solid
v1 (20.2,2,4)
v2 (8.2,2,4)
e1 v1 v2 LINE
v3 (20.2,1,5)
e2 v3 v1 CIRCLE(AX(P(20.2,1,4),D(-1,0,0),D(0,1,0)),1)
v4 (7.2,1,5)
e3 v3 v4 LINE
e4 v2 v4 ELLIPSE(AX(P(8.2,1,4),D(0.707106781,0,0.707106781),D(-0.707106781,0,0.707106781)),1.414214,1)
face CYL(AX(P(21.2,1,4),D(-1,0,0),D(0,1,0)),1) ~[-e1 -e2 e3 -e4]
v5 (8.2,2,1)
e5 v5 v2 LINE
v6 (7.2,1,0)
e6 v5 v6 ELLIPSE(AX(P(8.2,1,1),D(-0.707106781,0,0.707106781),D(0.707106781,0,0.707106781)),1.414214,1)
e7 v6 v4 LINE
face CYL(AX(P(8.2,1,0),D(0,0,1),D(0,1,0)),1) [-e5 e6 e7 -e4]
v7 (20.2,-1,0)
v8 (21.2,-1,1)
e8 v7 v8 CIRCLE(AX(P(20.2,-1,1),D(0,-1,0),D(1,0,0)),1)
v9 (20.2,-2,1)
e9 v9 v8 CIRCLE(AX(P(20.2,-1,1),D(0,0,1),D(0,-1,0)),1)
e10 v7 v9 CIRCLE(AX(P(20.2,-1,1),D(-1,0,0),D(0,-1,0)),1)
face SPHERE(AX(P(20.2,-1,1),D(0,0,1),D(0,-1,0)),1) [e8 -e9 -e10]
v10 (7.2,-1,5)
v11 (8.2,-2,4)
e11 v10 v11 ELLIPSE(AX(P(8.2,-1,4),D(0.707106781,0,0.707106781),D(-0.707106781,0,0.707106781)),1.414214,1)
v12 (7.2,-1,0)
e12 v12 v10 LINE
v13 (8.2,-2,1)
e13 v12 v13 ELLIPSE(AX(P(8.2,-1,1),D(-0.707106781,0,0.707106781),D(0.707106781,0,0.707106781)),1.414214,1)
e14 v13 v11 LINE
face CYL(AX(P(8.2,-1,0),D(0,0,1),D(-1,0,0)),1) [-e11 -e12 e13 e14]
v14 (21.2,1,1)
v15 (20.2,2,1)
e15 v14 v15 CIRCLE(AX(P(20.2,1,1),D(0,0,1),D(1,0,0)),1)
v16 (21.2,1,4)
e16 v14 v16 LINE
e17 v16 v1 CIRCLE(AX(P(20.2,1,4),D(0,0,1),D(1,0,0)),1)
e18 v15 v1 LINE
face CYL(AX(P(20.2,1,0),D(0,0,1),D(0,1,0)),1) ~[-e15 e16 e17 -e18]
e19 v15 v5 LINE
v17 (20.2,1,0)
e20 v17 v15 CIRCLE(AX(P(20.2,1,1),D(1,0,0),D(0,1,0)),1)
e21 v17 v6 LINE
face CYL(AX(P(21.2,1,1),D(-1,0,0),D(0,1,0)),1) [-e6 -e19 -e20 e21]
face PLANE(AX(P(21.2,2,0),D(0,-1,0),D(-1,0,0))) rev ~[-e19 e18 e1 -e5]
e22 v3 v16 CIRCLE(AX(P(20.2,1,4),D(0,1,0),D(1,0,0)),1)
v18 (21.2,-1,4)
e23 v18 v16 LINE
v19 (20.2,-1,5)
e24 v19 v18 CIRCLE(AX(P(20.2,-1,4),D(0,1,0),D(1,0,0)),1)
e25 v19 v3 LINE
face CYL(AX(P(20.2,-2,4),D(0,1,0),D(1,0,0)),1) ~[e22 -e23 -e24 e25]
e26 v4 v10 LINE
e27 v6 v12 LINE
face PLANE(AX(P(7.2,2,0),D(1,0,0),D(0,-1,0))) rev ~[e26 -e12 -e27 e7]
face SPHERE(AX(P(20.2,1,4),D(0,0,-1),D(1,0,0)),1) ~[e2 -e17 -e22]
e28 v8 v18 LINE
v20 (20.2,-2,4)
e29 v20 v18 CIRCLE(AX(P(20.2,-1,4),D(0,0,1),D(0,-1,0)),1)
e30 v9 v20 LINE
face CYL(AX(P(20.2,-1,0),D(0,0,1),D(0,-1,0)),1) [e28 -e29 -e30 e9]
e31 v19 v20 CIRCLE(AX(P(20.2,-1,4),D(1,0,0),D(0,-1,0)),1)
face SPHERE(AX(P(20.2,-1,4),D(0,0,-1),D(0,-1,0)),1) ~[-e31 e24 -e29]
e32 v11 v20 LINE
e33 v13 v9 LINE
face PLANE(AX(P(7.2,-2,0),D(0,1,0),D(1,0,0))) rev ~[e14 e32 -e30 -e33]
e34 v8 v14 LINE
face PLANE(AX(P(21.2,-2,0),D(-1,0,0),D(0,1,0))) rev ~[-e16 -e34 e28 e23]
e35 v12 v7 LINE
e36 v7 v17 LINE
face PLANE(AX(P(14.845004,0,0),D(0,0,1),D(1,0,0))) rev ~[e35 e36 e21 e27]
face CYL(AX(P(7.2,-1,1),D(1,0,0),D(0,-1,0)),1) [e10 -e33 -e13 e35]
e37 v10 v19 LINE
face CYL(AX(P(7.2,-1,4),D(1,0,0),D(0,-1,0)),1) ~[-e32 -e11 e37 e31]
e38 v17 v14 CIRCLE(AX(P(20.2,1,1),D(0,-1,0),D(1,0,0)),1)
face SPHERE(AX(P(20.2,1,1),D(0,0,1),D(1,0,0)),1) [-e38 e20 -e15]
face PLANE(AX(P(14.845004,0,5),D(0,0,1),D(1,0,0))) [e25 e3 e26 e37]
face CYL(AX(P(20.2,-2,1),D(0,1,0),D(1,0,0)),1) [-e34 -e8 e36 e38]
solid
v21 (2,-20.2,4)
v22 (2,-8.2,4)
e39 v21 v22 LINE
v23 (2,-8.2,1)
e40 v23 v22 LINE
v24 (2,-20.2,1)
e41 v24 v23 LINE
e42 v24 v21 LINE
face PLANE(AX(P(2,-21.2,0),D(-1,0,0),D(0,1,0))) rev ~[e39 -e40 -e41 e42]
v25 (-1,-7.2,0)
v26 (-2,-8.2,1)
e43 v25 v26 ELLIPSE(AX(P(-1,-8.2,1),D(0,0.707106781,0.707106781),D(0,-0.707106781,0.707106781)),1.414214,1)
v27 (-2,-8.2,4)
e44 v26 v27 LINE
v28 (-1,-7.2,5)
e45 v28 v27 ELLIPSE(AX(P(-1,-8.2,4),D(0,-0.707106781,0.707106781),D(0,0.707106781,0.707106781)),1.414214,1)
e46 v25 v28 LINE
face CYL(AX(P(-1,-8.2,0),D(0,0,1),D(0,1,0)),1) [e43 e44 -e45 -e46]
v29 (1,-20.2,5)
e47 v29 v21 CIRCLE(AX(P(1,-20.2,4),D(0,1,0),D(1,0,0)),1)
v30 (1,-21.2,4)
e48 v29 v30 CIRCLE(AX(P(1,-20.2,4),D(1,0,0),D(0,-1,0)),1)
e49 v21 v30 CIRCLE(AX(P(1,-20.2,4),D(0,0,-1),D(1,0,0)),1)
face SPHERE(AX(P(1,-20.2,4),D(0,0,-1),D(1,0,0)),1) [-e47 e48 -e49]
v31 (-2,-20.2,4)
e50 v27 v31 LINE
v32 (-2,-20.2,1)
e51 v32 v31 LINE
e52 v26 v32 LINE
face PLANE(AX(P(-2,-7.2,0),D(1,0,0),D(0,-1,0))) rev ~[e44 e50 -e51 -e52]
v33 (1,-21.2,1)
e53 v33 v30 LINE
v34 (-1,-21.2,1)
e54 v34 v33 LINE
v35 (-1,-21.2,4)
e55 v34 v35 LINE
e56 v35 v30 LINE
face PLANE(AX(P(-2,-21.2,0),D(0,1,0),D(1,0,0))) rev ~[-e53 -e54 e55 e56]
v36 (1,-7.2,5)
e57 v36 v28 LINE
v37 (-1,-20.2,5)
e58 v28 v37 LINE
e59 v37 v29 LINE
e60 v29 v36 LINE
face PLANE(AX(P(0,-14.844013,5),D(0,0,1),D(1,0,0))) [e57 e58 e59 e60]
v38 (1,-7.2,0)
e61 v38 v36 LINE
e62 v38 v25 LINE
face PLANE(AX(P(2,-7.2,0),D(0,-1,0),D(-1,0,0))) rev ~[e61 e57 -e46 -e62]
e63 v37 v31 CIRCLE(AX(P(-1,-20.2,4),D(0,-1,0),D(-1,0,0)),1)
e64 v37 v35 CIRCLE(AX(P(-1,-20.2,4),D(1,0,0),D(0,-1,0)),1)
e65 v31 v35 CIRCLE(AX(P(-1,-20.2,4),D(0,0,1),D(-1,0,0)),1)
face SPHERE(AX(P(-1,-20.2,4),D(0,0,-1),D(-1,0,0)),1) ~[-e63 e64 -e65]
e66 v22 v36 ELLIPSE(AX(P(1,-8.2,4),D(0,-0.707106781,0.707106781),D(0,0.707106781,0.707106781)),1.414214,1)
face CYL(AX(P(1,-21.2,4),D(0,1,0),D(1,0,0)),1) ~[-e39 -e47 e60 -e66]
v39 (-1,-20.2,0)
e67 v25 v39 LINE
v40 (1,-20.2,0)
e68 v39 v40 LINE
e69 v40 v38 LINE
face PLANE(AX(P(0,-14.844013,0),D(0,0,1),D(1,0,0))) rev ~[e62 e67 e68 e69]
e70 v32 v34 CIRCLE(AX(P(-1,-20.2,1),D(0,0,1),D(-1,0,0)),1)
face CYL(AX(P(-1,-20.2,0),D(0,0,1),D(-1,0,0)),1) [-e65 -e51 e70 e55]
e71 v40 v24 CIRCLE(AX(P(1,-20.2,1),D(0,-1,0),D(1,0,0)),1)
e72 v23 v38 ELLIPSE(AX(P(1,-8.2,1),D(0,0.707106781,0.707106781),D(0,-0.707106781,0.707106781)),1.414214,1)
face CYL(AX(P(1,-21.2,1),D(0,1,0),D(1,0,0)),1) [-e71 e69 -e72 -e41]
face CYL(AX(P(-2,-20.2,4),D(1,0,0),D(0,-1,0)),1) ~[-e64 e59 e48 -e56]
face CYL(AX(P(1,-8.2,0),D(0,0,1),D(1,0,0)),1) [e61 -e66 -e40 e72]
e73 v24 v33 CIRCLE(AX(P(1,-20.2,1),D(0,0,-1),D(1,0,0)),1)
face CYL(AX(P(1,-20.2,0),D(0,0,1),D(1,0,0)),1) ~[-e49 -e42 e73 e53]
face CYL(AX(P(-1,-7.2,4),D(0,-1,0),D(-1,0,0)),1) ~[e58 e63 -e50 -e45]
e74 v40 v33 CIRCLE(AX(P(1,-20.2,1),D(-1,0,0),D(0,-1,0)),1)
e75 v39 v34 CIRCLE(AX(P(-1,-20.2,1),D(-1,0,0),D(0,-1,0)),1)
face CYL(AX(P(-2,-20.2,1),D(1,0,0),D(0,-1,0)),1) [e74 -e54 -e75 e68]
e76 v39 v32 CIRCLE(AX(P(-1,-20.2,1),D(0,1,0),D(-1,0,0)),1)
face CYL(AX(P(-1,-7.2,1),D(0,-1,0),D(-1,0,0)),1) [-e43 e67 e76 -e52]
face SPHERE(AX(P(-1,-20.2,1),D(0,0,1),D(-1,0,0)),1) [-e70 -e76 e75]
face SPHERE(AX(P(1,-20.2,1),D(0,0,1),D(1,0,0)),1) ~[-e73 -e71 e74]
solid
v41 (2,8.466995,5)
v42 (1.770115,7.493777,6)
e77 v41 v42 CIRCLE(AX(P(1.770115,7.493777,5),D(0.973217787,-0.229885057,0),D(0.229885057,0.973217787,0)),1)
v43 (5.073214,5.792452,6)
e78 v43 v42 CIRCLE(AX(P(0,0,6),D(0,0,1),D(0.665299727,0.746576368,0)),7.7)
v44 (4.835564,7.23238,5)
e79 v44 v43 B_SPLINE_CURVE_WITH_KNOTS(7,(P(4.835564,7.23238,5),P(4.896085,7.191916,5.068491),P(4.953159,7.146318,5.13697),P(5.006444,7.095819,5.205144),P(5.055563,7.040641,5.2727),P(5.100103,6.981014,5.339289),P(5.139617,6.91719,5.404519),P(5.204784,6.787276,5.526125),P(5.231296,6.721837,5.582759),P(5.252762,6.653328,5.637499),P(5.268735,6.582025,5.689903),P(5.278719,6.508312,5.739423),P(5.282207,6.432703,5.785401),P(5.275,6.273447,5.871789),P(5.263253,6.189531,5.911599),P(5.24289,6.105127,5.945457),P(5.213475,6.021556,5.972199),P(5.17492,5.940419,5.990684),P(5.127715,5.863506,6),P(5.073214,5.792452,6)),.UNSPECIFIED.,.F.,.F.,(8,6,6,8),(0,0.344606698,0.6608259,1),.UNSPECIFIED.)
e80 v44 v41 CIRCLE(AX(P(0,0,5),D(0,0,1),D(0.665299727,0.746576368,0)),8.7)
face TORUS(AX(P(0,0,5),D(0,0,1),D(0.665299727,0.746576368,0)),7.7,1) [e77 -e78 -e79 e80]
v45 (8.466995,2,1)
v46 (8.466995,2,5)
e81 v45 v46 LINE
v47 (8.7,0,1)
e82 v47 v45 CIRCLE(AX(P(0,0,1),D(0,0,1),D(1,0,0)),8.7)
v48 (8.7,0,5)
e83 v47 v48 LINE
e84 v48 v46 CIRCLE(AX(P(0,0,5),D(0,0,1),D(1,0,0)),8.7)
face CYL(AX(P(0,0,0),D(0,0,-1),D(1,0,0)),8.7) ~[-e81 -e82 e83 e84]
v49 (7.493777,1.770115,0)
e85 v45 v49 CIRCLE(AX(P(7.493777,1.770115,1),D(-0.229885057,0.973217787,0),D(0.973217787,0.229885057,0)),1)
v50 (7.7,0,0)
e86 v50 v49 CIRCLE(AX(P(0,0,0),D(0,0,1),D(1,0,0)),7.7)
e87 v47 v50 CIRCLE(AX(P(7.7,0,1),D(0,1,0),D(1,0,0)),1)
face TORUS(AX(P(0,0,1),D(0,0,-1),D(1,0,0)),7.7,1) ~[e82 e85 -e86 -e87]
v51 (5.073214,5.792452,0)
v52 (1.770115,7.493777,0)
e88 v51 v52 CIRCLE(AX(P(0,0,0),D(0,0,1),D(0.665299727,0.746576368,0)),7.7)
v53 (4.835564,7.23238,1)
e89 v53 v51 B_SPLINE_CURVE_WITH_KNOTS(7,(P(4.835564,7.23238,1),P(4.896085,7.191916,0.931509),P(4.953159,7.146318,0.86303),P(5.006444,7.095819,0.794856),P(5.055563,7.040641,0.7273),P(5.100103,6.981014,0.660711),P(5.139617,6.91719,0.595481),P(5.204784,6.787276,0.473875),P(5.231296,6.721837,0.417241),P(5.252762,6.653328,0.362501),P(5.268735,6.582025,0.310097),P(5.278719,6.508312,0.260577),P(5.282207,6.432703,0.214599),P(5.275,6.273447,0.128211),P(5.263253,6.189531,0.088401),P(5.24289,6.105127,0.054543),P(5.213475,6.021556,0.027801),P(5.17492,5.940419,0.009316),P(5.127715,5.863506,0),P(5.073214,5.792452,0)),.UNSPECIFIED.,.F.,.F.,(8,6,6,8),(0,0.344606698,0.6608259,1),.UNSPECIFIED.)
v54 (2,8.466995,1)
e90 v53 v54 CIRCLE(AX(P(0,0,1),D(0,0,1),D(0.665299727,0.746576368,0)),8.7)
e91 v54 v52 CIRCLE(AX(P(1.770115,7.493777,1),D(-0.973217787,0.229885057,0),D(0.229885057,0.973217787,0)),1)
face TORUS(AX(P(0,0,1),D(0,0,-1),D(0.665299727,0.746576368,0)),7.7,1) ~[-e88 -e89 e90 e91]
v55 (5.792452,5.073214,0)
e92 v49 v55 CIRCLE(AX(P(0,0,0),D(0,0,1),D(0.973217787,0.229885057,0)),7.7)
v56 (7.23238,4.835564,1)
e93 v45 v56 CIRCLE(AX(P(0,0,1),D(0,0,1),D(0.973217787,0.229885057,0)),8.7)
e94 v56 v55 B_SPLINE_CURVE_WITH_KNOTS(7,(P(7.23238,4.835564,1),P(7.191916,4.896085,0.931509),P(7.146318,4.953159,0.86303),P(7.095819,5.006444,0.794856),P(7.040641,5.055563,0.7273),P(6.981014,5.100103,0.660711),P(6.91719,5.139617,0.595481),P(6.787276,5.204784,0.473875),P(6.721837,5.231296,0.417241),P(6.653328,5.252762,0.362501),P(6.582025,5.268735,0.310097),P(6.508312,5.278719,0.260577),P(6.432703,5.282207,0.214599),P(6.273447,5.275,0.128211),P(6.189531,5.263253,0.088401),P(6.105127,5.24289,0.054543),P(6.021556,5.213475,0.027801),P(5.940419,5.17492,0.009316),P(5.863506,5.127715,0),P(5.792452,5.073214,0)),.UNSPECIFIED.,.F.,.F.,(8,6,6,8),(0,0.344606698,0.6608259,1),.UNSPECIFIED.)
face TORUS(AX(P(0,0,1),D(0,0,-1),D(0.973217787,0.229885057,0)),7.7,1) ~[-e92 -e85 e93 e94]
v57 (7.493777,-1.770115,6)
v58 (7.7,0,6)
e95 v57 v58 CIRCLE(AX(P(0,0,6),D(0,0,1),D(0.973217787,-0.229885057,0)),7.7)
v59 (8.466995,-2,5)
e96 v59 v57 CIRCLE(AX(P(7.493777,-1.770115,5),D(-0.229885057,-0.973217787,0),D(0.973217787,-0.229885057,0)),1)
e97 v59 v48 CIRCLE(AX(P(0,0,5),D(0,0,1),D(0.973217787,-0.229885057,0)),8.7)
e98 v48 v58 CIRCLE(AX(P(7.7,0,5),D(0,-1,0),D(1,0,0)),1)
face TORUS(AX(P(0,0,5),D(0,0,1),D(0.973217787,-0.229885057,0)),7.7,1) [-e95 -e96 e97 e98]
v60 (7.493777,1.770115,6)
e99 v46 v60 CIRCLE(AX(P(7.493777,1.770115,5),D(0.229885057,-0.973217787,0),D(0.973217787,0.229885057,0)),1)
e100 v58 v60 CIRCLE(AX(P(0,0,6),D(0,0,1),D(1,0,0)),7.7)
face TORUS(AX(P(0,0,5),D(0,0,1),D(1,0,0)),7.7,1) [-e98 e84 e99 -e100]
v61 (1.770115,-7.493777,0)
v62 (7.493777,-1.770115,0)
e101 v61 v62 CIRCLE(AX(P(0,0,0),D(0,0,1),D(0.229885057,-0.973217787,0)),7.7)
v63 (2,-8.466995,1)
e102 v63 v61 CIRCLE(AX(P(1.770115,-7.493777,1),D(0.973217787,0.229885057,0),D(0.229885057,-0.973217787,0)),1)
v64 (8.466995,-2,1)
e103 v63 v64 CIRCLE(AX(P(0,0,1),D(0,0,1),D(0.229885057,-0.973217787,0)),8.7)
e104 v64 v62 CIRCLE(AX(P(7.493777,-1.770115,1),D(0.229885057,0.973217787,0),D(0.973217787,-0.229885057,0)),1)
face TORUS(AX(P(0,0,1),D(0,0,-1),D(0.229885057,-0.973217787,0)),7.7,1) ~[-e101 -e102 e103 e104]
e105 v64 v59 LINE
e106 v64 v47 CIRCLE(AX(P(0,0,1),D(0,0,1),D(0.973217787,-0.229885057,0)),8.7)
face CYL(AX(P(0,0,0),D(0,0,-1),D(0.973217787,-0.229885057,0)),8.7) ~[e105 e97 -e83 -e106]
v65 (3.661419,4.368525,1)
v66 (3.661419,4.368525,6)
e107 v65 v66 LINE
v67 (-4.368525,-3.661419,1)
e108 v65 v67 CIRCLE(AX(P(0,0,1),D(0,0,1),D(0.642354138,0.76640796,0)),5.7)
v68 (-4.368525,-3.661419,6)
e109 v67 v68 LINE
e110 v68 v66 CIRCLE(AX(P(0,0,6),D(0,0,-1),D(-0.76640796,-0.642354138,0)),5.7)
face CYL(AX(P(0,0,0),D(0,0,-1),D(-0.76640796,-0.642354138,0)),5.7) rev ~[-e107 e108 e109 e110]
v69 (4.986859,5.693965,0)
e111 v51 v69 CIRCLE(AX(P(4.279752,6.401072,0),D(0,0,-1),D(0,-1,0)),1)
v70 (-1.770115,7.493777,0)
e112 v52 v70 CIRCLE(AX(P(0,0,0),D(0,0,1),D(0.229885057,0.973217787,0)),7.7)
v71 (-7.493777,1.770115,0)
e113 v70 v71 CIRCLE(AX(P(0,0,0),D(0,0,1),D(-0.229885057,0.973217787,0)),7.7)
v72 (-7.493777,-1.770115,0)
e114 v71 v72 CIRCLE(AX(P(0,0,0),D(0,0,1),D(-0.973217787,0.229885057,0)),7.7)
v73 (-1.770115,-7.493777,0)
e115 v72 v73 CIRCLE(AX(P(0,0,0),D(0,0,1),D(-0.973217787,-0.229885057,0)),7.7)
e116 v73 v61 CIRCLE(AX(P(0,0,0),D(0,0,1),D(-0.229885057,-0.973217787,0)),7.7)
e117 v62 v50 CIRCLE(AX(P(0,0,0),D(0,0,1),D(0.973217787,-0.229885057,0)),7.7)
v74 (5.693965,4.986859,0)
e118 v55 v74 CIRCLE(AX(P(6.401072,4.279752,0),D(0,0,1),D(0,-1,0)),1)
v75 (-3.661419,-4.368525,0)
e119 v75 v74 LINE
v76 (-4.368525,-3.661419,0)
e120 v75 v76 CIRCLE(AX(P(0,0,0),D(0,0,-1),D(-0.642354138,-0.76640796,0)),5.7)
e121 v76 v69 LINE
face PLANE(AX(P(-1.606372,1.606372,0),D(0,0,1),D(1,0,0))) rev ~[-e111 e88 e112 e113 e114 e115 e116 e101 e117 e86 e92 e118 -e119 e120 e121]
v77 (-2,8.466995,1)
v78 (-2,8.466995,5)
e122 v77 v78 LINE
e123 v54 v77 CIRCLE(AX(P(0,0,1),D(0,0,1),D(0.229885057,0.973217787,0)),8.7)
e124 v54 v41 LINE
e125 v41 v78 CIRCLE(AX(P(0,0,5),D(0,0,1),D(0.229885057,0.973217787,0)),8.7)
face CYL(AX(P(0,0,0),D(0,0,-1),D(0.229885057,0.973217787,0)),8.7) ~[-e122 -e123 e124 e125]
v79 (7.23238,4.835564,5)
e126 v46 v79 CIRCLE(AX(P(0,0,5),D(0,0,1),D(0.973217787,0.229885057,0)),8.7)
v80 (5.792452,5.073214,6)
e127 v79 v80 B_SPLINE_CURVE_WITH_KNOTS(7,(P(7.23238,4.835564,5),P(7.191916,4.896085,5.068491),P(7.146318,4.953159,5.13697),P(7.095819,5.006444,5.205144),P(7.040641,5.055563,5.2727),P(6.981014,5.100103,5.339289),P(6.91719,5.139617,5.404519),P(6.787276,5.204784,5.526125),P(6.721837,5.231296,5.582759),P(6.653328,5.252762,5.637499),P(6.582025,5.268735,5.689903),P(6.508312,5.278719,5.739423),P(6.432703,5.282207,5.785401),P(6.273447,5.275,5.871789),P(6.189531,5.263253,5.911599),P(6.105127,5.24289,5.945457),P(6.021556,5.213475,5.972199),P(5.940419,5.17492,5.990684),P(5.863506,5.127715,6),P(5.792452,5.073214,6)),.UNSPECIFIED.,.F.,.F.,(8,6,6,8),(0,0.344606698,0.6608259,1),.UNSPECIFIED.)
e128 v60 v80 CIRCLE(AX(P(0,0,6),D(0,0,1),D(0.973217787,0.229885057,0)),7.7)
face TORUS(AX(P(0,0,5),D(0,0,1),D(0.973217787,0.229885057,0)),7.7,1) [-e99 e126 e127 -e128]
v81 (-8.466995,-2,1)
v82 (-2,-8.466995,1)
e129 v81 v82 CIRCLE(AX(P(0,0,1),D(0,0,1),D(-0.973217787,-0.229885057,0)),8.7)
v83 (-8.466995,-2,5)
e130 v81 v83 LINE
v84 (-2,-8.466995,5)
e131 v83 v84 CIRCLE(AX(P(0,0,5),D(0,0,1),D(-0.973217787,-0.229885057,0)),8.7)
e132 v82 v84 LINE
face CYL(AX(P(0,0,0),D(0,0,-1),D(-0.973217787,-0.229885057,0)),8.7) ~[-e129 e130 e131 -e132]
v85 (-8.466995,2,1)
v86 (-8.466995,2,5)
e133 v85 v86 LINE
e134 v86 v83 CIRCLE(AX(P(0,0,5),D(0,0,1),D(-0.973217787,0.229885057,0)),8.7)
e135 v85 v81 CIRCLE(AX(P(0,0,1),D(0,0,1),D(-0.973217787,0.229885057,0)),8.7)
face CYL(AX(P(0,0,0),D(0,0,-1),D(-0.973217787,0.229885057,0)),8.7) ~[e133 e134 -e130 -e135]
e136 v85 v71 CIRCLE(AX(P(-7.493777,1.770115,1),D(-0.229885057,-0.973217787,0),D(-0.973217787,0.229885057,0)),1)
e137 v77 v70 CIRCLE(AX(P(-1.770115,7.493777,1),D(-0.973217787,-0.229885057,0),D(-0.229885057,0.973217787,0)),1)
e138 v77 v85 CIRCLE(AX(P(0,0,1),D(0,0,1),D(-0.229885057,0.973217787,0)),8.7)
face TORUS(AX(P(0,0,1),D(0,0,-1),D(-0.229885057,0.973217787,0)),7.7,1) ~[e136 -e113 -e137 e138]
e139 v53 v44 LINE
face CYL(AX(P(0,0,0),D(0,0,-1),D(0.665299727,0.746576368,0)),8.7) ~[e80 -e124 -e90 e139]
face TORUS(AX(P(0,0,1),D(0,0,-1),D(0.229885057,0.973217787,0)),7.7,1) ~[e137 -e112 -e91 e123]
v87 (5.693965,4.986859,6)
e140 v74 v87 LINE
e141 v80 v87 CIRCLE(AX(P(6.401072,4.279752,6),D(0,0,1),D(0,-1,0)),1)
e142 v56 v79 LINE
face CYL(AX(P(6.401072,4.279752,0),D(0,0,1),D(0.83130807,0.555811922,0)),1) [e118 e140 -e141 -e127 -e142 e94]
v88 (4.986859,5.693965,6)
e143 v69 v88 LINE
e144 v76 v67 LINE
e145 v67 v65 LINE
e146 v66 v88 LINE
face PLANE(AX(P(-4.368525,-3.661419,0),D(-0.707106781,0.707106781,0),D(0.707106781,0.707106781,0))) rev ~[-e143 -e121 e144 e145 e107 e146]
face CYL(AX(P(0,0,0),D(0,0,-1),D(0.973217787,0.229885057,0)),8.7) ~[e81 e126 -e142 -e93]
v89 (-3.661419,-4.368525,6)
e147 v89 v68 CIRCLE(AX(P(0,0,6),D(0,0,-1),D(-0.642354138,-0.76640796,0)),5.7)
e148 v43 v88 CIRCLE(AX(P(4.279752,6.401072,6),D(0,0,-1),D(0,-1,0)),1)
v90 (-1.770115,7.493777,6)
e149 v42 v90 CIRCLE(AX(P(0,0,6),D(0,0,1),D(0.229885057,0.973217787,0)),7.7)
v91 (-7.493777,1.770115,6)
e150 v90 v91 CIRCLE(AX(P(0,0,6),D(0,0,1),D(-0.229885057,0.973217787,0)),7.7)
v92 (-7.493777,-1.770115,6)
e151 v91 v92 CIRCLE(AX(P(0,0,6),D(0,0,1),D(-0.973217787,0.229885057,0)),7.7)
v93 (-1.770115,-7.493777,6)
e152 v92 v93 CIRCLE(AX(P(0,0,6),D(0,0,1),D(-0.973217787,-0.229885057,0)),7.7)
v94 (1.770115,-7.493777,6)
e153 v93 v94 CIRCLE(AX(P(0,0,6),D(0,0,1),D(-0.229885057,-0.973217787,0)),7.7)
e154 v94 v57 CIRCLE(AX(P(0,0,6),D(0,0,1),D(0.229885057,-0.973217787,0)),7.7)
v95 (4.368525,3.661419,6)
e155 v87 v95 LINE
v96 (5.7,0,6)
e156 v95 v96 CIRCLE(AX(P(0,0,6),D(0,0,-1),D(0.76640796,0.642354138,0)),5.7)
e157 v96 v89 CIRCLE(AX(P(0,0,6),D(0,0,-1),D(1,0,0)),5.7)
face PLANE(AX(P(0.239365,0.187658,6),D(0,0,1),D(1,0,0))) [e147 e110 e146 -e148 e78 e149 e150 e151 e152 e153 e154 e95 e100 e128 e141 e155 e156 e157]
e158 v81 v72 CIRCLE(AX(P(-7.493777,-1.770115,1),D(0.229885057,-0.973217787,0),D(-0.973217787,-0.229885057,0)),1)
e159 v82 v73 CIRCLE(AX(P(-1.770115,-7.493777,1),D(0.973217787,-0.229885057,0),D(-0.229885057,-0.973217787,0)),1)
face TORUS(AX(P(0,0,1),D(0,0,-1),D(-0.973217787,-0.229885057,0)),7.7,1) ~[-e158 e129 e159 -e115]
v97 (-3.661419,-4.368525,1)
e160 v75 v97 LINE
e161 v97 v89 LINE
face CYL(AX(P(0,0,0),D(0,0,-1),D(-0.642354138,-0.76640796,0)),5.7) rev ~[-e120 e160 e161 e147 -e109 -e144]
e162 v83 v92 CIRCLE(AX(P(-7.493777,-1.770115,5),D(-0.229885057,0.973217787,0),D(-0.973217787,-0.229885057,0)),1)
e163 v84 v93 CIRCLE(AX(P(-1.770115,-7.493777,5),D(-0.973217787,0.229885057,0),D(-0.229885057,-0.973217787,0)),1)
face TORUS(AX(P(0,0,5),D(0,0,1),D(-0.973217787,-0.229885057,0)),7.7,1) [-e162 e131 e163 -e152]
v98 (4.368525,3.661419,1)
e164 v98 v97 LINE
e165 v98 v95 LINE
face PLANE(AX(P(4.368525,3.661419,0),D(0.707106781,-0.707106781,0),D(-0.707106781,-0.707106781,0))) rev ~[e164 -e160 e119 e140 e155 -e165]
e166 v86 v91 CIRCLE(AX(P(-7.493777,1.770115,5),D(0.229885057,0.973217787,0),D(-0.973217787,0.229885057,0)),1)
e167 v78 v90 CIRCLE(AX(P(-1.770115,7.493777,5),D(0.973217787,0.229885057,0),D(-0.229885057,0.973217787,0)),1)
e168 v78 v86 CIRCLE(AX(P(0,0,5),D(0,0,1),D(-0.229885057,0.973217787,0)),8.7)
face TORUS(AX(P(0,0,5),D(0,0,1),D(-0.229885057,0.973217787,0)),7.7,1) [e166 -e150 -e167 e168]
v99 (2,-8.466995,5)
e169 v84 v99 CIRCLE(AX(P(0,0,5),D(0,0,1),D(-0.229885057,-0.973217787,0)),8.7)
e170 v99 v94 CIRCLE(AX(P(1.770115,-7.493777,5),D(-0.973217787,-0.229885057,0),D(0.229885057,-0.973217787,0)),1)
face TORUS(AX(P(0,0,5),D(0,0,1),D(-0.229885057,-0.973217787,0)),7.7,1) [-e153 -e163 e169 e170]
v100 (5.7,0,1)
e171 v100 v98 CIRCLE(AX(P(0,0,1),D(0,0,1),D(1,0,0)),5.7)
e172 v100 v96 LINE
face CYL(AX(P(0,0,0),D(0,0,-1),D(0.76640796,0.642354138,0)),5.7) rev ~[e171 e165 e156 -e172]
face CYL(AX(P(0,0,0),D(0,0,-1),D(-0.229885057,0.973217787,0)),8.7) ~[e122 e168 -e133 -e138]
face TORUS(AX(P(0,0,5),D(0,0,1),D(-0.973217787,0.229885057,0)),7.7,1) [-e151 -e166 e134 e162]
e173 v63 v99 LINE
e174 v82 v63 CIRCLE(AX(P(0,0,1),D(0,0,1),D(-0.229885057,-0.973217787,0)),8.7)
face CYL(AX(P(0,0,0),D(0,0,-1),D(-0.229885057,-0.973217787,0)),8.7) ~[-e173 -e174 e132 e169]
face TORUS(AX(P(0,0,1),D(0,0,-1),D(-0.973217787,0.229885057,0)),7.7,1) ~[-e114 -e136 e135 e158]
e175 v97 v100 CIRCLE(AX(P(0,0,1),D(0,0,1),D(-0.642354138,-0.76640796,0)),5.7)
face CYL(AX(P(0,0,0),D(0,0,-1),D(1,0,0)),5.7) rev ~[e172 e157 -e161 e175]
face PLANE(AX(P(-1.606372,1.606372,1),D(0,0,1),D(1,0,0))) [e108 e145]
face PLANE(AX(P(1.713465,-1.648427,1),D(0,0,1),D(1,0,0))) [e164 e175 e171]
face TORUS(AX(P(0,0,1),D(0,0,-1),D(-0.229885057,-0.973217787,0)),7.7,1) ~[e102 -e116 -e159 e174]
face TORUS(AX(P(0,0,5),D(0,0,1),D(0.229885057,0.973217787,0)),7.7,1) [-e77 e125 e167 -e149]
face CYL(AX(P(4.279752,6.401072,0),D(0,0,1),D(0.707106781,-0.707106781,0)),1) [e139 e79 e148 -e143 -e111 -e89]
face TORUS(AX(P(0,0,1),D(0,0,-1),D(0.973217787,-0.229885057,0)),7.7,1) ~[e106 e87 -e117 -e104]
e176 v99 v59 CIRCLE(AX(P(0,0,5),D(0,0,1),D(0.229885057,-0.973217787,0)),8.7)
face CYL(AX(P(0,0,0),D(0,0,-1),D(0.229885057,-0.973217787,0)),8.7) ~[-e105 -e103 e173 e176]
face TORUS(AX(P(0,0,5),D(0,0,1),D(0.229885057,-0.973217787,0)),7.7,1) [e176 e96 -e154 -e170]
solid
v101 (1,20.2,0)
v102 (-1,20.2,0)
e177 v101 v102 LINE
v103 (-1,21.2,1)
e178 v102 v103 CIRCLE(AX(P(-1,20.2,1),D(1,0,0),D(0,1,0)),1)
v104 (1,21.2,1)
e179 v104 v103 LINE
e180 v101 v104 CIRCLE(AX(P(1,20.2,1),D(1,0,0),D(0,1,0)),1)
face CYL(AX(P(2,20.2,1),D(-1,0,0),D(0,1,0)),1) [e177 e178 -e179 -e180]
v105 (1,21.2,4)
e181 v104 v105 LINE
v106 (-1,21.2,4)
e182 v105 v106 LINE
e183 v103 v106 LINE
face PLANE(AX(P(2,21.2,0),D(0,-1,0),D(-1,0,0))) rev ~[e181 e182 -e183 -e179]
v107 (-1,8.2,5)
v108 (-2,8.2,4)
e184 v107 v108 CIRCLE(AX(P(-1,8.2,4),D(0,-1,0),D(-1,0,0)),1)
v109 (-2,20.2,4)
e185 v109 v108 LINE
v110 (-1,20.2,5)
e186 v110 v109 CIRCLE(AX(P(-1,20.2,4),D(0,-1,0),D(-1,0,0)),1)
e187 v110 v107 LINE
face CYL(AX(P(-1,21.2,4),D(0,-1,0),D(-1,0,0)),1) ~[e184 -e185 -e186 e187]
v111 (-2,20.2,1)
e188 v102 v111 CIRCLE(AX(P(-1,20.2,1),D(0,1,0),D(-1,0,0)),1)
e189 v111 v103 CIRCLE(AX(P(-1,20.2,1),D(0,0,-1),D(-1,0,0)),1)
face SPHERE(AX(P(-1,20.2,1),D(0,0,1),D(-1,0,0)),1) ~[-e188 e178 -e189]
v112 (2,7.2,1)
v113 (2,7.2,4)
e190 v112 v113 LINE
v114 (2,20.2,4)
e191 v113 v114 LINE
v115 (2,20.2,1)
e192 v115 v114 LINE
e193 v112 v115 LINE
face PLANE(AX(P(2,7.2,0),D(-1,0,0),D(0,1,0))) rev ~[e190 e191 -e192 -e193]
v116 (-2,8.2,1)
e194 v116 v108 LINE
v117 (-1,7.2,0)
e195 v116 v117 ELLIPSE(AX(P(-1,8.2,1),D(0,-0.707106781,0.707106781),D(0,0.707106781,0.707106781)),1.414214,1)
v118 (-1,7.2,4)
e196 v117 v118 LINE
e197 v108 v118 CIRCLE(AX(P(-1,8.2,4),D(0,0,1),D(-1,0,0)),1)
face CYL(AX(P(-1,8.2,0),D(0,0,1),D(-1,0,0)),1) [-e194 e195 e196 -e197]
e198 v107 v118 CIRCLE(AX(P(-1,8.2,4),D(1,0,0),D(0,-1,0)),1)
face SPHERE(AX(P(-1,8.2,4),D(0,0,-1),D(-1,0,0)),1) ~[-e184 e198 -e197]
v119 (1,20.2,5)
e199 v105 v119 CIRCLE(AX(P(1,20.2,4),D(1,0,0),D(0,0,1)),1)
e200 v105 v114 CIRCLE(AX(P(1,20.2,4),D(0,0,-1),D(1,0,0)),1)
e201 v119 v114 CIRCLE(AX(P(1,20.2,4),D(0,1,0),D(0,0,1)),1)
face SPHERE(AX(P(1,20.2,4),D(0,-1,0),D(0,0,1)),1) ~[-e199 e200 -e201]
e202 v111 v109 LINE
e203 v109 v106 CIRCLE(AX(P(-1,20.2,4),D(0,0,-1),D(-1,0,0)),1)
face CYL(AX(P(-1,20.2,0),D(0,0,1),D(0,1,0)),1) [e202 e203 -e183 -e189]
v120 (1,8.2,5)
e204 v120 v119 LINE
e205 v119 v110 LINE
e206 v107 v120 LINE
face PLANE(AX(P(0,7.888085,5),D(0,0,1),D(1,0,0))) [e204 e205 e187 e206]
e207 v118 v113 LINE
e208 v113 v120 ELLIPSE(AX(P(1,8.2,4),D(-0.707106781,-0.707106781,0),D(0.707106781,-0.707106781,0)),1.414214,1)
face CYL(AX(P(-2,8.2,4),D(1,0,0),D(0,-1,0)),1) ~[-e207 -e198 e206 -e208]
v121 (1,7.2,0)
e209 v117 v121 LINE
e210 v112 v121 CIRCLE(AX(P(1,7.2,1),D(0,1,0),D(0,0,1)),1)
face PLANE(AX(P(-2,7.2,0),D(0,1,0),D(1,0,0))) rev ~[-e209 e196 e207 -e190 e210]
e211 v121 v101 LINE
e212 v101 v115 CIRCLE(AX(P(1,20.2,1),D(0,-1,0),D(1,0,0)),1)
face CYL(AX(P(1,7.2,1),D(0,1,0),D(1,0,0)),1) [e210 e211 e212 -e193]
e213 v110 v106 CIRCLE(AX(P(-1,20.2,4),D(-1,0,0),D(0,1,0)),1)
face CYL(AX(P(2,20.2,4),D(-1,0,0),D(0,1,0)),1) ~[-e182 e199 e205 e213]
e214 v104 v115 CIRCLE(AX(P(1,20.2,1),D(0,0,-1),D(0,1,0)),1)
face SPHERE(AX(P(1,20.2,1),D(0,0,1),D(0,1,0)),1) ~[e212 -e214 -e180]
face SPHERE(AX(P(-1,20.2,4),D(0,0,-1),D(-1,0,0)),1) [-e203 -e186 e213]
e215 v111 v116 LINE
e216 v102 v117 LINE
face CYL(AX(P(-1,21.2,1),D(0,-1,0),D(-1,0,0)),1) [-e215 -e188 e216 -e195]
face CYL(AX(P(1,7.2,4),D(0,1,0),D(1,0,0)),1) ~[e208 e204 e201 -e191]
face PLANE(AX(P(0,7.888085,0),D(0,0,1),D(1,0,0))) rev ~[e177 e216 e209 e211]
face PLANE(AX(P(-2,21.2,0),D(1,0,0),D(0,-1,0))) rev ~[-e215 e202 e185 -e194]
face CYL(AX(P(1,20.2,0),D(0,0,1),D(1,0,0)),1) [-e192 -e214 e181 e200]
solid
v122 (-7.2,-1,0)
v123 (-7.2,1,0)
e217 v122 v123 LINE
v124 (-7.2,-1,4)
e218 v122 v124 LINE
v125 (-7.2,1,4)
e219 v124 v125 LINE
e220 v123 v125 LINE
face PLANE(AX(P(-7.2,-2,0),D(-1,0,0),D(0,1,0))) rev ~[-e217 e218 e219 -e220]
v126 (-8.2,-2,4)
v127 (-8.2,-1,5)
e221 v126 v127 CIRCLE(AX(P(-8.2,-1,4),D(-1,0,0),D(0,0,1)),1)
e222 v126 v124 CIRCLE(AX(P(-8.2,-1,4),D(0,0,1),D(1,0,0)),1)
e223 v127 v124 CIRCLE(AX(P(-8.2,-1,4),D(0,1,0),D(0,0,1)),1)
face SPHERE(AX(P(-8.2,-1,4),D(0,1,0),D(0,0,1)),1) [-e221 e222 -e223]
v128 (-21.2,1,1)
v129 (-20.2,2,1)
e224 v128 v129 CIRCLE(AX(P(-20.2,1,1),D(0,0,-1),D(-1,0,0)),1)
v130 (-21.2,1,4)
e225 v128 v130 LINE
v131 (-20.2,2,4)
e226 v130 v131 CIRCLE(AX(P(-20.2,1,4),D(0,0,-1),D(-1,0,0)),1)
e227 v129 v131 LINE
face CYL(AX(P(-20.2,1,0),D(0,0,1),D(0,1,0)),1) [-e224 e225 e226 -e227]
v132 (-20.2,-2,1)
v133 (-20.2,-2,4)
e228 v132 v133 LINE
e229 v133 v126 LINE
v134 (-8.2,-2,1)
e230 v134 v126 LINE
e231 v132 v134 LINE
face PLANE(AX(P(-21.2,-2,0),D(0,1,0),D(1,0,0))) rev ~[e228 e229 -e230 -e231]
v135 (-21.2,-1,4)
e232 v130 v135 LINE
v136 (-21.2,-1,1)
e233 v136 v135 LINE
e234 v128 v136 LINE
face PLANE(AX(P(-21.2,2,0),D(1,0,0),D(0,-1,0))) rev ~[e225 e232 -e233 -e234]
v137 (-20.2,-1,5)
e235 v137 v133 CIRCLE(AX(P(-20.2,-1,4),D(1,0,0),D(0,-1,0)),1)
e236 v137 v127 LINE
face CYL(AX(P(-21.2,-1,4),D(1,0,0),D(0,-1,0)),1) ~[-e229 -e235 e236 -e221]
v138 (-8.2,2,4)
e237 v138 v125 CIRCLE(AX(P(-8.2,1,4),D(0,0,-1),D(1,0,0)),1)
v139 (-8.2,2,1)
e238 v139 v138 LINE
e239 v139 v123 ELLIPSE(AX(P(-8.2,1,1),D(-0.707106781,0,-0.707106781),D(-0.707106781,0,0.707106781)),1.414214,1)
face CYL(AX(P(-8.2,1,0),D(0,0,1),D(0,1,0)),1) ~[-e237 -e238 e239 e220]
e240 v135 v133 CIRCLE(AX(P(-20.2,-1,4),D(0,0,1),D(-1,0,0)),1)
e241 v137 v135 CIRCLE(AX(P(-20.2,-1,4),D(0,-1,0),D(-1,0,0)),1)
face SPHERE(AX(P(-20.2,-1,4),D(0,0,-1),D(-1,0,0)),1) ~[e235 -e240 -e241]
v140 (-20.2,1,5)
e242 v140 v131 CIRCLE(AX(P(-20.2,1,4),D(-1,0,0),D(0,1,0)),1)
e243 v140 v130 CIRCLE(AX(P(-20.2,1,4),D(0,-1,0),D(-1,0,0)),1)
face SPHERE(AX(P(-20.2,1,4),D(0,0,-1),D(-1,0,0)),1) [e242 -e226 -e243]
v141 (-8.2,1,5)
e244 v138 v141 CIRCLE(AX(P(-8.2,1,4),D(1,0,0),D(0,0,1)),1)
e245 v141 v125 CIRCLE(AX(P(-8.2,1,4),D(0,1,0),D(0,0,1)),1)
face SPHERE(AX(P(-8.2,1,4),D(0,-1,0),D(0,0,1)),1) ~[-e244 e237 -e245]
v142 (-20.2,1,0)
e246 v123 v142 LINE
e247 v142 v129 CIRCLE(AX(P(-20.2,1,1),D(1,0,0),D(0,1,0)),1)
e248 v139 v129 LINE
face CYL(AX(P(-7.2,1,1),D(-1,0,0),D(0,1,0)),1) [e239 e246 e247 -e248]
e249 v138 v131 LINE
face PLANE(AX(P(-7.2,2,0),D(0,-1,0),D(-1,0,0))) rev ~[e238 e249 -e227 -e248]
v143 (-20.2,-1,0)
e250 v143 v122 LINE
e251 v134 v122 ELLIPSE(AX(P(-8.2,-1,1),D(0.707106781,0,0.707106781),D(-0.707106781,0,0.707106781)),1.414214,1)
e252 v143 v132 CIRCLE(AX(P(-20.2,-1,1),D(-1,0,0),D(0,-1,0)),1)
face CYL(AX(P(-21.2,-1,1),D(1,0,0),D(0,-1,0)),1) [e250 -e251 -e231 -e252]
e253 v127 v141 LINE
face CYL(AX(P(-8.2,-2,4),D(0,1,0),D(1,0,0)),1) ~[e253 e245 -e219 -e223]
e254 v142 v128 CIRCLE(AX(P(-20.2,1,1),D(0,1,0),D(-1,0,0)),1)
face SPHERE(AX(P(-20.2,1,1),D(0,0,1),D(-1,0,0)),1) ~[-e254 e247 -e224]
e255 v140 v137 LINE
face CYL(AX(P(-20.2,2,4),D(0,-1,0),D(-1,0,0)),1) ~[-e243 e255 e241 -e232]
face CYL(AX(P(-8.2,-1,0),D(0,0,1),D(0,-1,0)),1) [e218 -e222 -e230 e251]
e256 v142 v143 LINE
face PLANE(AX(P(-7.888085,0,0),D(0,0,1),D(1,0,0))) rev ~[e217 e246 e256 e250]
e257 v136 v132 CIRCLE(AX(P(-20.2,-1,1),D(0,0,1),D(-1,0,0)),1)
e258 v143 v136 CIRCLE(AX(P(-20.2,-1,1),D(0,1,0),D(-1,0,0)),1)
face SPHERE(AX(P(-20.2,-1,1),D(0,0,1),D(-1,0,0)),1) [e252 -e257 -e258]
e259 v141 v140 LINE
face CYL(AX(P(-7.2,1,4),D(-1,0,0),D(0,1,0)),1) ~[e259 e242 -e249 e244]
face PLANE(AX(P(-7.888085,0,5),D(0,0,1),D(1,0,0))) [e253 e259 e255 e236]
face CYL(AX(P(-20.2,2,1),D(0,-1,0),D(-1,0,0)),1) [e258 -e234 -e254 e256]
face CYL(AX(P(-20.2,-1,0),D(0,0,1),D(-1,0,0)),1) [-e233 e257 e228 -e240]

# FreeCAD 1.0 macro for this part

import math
import FreeCAD as App
import Part
import Sketcher

V = App.Vector
Q = App.Units.Quantity


def edges_at(feature, points):
    """Names of the edges that pass closest to the given points."""
    edges = feature.Shape.Edges
    near = lambda p: min(range(len(edges)), key=lambda i: edges[i].distToShape(Part.Vertex(*p))[0])
    return sorted({f"Edge{near(p) + 1}" for p in points})

doc = App.newDocument("Part")
params = doc.addObject("Spreadsheet::Sheet", "Params")
for row, (alias, value) in enumerate([
    ("sketch1_width", "14 mm"),
    ("sketch1_height", "4 mm"),
    ("pad1_length", "5 mm"),
    ("sketch2_radius", "5.7 mm"),
    ("sketch2_length", "1 mm"),
    ("fillet_radius", "1 mm"),
    ("sketch3_width", "4 mm"),
    ("sketch3_height", "14 mm"),
    ("pad2_length", "5 mm"),
    ("fillet2_radius", "1 mm"),
    ("sketch4_width", "4 mm"),
    ("sketch4_height", "14 mm"),
    ("pad3_length", "5 mm"),
    ("fillet3_radius", "1 mm"),
    ("sketch5_width", "14 mm"),
    ("sketch5_height", "4 mm"),
    ("pad4_length", "5 mm"),
    ("fillet4_radius", "1 mm"),
    ("sketch6_radius", "5.7 mm"),
    ("sketch6_radius2", "8.7 mm"),
    ("pad5_length", "6 mm"),
    ("fillet5_radius", "1 mm"),
    ("sketch7_radius", "5.7 mm"),
    ("pad6_length", "1 mm"),
], start=1):
    params.set(f"A{row}", alias)
    params.set(f"B{row}", "=" + value)
    params.setAlias(f"B{row}", alias)

body = doc.addObject("PartDesign::Body", "Body")

sketch1 = body.newObject("Sketcher::SketchObject", "Sketch")
sketch1.AttachmentSupport = (doc.getObject("XY_Plane"), [""])
sketch1.MapMode = "FlatFace"
sketch1.addGeometry(Part.LineSegment(V(-7.2, 2, 0), V(-21.2, 2, 0)), False)
sketch1.addGeometry(Part.LineSegment(V(-21.2, 2, 0), V(-21.2, -2, 0)), False)
sketch1.addGeometry(Part.LineSegment(V(-21.2, -2, 0), V(-7.2, -2, 0)), False)
sketch1.addGeometry(Part.LineSegment(V(-7.2, -2, 0), V(-7.2, 2, 0)), False)
sketch1.addConstraint(Sketcher.Constraint("Coincident", 0, 2, 1, 1))
sketch1.addConstraint(Sketcher.Constraint("Coincident", 1, 2, 2, 1))
sketch1.addConstraint(Sketcher.Constraint("Coincident", 2, 2, 3, 1))
sketch1.addConstraint(Sketcher.Constraint("Coincident", 3, 2, 0, 1))
sketch1.addConstraint(Sketcher.Constraint("Horizontal", 0))
sketch1.addConstraint(Sketcher.Constraint("Vertical", 1))
sketch1.addConstraint(Sketcher.Constraint("Horizontal", 2))
sketch1.addConstraint(Sketcher.Constraint("Vertical", 3))
sketch1.addConstraint(Sketcher.Constraint("DistanceX", 0, 2, 0, 1, 14.0))
sketch1.addConstraint(Sketcher.Constraint("DistanceY", 1, 2, 1, 1, 4.0))
sketch1.addConstraint(Sketcher.Constraint("DistanceY", -1, 1, 0, 2, 2.0))
sketch1.addConstraint(Sketcher.Constraint("DistanceX", 0, 2, -1, 1, 21.2))
sketch1.setExpression("Constraints[8]", "Params.sketch1_width")
sketch1.setExpression("Constraints[9]", "Params.sketch1_height")
pad1 = body.newObject("PartDesign::Pad", "Pad")
pad1.Profile = sketch1
pad1.setExpression("Length", "Params.pad1_length")

sketch2 = body.newObject("Sketcher::SketchObject", "Sketch001")
sketch2.AttachmentSupport = (doc.getObject("XY_Plane"), [""])
sketch2.MapMode = "FlatFace"
sketch2.addGeometry(Part.LineSegment(V(13.788582, 14.495689, 0), V(-4.368525, -3.661419, 0)), False)
sketch2.addGeometry(Part.ArcOfCircle(Part.Circle(V(0, 0, 0), V(0, 0, 1), 5.7), math.radians(-140.032414), math.radians(-129.967586)), False)
sketch2.addGeometry(Part.LineSegment(V(-3.661419, -4.368525, 0), V(14.495689, 13.788582, 0)), False)
sketch2.addGeometry(Part.LineSegment(V(14.495689, 13.788582, 0), V(13.788582, 14.495689, 0)), False)
sketch2.addConstraint(Sketcher.Constraint("Coincident", 0, 2, 1, 1))
sketch2.addConstraint(Sketcher.Constraint("Coincident", 1, 2, 2, 1))
sketch2.addConstraint(Sketcher.Constraint("Coincident", 2, 2, 3, 1))
sketch2.addConstraint(Sketcher.Constraint("Coincident", 3, 2, 0, 1))
sketch2.addConstraint(Sketcher.Constraint("Coincident", 1, 3, -1, 1))
sketch2.addConstraint(Sketcher.Constraint("Parallel", 0, 2))
sketch2.addConstraint(Sketcher.Constraint("Perpendicular", 2, 3))
sketch2.addConstraint(Sketcher.Constraint("Equal", 0, 2))
sketch2.addConstraint(Sketcher.Constraint("Radius", 1, 5.7))
sketch2.addConstraint(Sketcher.Constraint("Angle", 0, Q("-135 deg")))
sketch2.addConstraint(Sketcher.Constraint("Distance", 3, 1.0))
sketch2.addConstraint(Sketcher.Constraint("DistanceY", 0, 2, 2, 2, 17.450001))
sketch2.setExpression("Constraints[8]", "Params.sketch2_radius")
sketch2.setExpression("Constraints[10]", "Params.sketch2_length")
pocket1 = body.newObject("PartDesign::Pocket", "Pocket")
pocket1.Profile = sketch2
pocket1.Type = "ThroughAll"
pocket1.Reversed = True
doc.recompute()

fillet = body.newObject("PartDesign::Fillet", "Fillet")
fillet.Base = (pocket1, edges_at(pocket1, [
    (-21.2, 2, 2.5),
    (-21.2, -2, 2.5),
    (-21.2, 0, 0),
    (-21.2, 0, 5),
    (-7.2, 0, 5),
    (-14.2, 2, 5),
    (-14.2, -2, 5),
    (-7.2, -2, 2.5),
    (-14.2, -2, 0),
    (-7.2, 2, 2.5),
    (-14.2, 2, 0),
]))
fillet.setExpression("Radius", "Params.fillet_radius")
body2 = doc.addObject("PartDesign::Body", "Body001")

sketch3 = body2.newObject("Sketcher::SketchObject", "Sketch002")
sketch3.AttachmentSupport = (doc.getObject("XY_Plane001"), [""])
sketch3.MapMode = "FlatFace"
sketch3.addGeometry(Part.LineSegment(V(2, 7.2, 0), V(2, 21.2, 0)), False)
sketch3.addGeometry(Part.LineSegment(V(2, 21.2, 0), V(-2, 21.2, 0)), False)
sketch3.addGeometry(Part.LineSegment(V(-2, 21.2, 0), V(-2, 7.2, 0)), False)
sketch3.addGeometry(Part.LineSegment(V(-2, 7.2, 0), V(2, 7.2, 0)), False)
sketch3.addConstraint(Sketcher.Constraint("Coincident", 0, 2, 1, 1))
sketch3.addConstraint(Sketcher.Constraint("Coincident", 1, 2, 2, 1))
sketch3.addConstraint(Sketcher.Constraint("Coincident", 2, 2, 3, 1))
sketch3.addConstraint(Sketcher.Constraint("Coincident", 3, 2, 0, 1))
sketch3.addConstraint(Sketcher.Constraint("Vertical", 0))
sketch3.addConstraint(Sketcher.Constraint("Horizontal", 1))
sketch3.addConstraint(Sketcher.Constraint("Vertical", 2))
sketch3.addConstraint(Sketcher.Constraint("Horizontal", 3))
sketch3.addConstraint(Sketcher.Constraint("DistanceX", 1, 2, 1, 1, 4.0))
sketch3.addConstraint(Sketcher.Constraint("DistanceY", 0, 1, 0, 2, 14.0))
sketch3.addConstraint(Sketcher.Constraint("DistanceX", -1, 1, 0, 2, 2.0))
sketch3.addConstraint(Sketcher.Constraint("DistanceY", -1, 1, 0, 2, 21.2))
sketch3.setExpression("Constraints[8]", "Params.sketch3_width")
sketch3.setExpression("Constraints[9]", "Params.sketch3_height")
pad2 = body2.newObject("PartDesign::Pad", "Pad001")
pad2.Profile = sketch3
pad2.setExpression("Length", "Params.pad2_length")
doc.recompute()

fillet2 = body2.newObject("PartDesign::Fillet", "Fillet001")
fillet2.Base = (pad2, edges_at(pad2, [
    (-2, 21.2, 2.5),
    (-2, 7.2, 2.5),
    (-2, 14.2, 0),
    (-2, 14.2, 5),
    (0, 7.2, 5),
    (2, 14.2, 5),
    (0, 21.2, 5),
    (2, 21.2, 2.5),
    (0, 21.2, 0),
    (2, 14.2, 0),
]))
fillet2.setExpression("Radius", "Params.fillet2_radius")
body3 = doc.addObject("PartDesign::Body", "Body002")

sketch4 = body3.newObject("Sketcher::SketchObject", "Sketch003")
sketch4.AttachmentSupport = (doc.getObject("XY_Plane002"), [""])
sketch4.MapMode = "FlatFace"
sketch4.addGeometry(Part.LineSegment(V(2, -21.2, 0), V(2, -7.2, 0)), False)
sketch4.addGeometry(Part.LineSegment(V(2, -7.2, 0), V(-2, -7.2, 0)), False)
sketch4.addGeometry(Part.LineSegment(V(-2, -7.2, 0), V(-2, -21.2, 0)), False)
sketch4.addGeometry(Part.LineSegment(V(-2, -21.2, 0), V(2, -21.2, 0)), False)
sketch4.addConstraint(Sketcher.Constraint("Coincident", 0, 2, 1, 1))
sketch4.addConstraint(Sketcher.Constraint("Coincident", 1, 2, 2, 1))
sketch4.addConstraint(Sketcher.Constraint("Coincident", 2, 2, 3, 1))
sketch4.addConstraint(Sketcher.Constraint("Coincident", 3, 2, 0, 1))
sketch4.addConstraint(Sketcher.Constraint("Vertical", 0))
sketch4.addConstraint(Sketcher.Constraint("Horizontal", 1))
sketch4.addConstraint(Sketcher.Constraint("Vertical", 2))
sketch4.addConstraint(Sketcher.Constraint("Horizontal", 3))
sketch4.addConstraint(Sketcher.Constraint("DistanceX", 1, 2, 1, 1, 4.0))
sketch4.addConstraint(Sketcher.Constraint("DistanceY", 0, 1, 0, 2, 14.0))
sketch4.addConstraint(Sketcher.Constraint("DistanceX", -1, 1, 0, 2, 2.0))
sketch4.addConstraint(Sketcher.Constraint("DistanceY", 0, 2, -1, 1, 7.2))
sketch4.setExpression("Constraints[8]", "Params.sketch4_width")
sketch4.setExpression("Constraints[9]", "Params.sketch4_height")
pad3 = body3.newObject("PartDesign::Pad", "Pad002")
pad3.Profile = sketch4
pad3.setExpression("Length", "Params.pad3_length")
doc.recompute()

fillet3 = body3.newObject("PartDesign::Fillet", "Fillet002")
fillet3.Base = (pad3, edges_at(pad3, [
    (2, -21.2, 2.5),
    (2, -7.2, 2.5),
    (2, -14.2, 0),
    (2, -14.2, 5),
    (-2, -7.2, 2.5),
    (-2, -21.2, 2.5),
    (-2, -14.2, 0),
    (-2, -14.2, 5),
    (0, -21.2, 0),
    (0, -21.2, 5),
]))
fillet3.setExpression("Radius", "Params.fillet3_radius")
body4 = doc.addObject("PartDesign::Body", "Body003")

sketch5 = body4.newObject("Sketcher::SketchObject", "Sketch004")
sketch5.AttachmentSupport = (doc.getObject("XY_Plane003"), [""])
sketch5.MapMode = "FlatFace"
sketch5.addGeometry(Part.LineSegment(V(21.2, 2, 0), V(7.2, 2, 0)), False)
sketch5.addGeometry(Part.LineSegment(V(7.2, 2, 0), V(7.2, -2, 0)), False)
sketch5.addGeometry(Part.LineSegment(V(7.2, -2, 0), V(21.2, -2, 0)), False)
sketch5.addGeometry(Part.LineSegment(V(21.2, -2, 0), V(21.2, 2, 0)), False)
sketch5.addConstraint(Sketcher.Constraint("Coincident", 0, 2, 1, 1))
sketch5.addConstraint(Sketcher.Constraint("Coincident", 1, 2, 2, 1))
sketch5.addConstraint(Sketcher.Constraint("Coincident", 2, 2, 3, 1))
sketch5.addConstraint(Sketcher.Constraint("Coincident", 3, 2, 0, 1))
sketch5.addConstraint(Sketcher.Constraint("Horizontal", 0))
sketch5.addConstraint(Sketcher.Constraint("Vertical", 1))
sketch5.addConstraint(Sketcher.Constraint("Horizontal", 2))
sketch5.addConstraint(Sketcher.Constraint("Vertical", 3))
sketch5.addConstraint(Sketcher.Constraint("DistanceX", 0, 2, 0, 1, 14.0))
sketch5.addConstraint(Sketcher.Constraint("DistanceY", 1, 2, 1, 1, 4.0))
sketch5.addConstraint(Sketcher.Constraint("DistanceY", -1, 1, 0, 2, 2.0))
sketch5.addConstraint(Sketcher.Constraint("DistanceX", -1, 1, 0, 2, 7.2))
sketch5.setExpression("Constraints[8]", "Params.sketch5_width")
sketch5.setExpression("Constraints[9]", "Params.sketch5_height")
pad4 = body4.newObject("PartDesign::Pad", "Pad003")
pad4.Profile = sketch5
pad4.setExpression("Length", "Params.pad4_length")
doc.recompute()

fillet4 = body4.newObject("PartDesign::Fillet", "Fillet003")
fillet4.Base = (pad4, edges_at(pad4, [
    (7.2, -2, 2.5),
    (21.2, -2, 2.5),
    (14.2, -2, 0),
    (14.2, -2, 5),
    (21.2, 2, 2.5),
    (21.2, 0, 0),
    (21.2, 0, 5),
    (7.2, 2, 2.5),
    (14.2, 2, 0),
    (14.2, 2, 5),
]))
fillet4.setExpression("Radius", "Params.fillet4_radius")
body5 = doc.addObject("PartDesign::Body", "Body004")

sketch6 = body5.newObject("Sketcher::SketchObject", "Sketch005")
sketch6.AttachmentSupport = (doc.getObject("XY_Plane004"), [""])
sketch6.MapMode = "FlatFace"
sketch6.addGeometry(Part.ArcOfCircle(Part.Circle(V(0, 0, 0), V(0, 0, 1), 5.7), math.radians(-140.032414), math.radians(-129.967586)), False)
sketch6.addGeometry(Part.ArcOfCircle(Part.Circle(V(0, 0, 0), V(0, 0, 1), 5.7), math.radians(50.032414), math.radians(219.967586)), False)
sketch6.addGeometry(Part.LineSegment(V(3.661419, 4.368525, 0), V(5.788108, 6.495214, 0)), False)
sketch6.addGeometry(Part.ArcOfCircle(Part.Circle(V(0, 0, 0), V(0, 0, 1), 8.7), math.radians(48.294676), math.radians(76.709695)), False)
sketch6.addGeometry(Part.ArcOfCircle(Part.Circle(V(0, 0, 0), V(0, 0, 1), 8.7), math.radians(76.709695), math.radians(103.290305)), False)
sketch6.addGeometry(Part.ArcOfCircle(Part.Circle(V(0, 0, 0), V(0, 0, 1), 8.7), math.radians(103.290305), math.radians(166.709695)), False)
sketch6.addGeometry(Part.ArcOfCircle(Part.Circle(V(0, 0, 0), V(0, 0, 1), 8.7), math.radians(166.709695), math.radians(193.290305)), False)
sketch6.addGeometry(Part.ArcOfCircle(Part.Circle(V(0, 0, 0), V(0, 0, 1), 8.7), math.radians(-166.709695), math.radians(-103.290305)), False)
sketch6.addGeometry(Part.ArcOfCircle(Part.Circle(V(0, 0, 0), V(0, 0, 1), 8.7), math.radians(-103.290305), math.radians(-76.709695)), False)
sketch6.addGeometry(Part.ArcOfCircle(Part.Circle(V(0, 0, 0), V(0, 0, 1), 8.7), math.radians(-76.709695), math.radians(-13.290305)), False)
sketch6.addGeometry(Part.ArcOfCircle(Part.Circle(V(0, 0, 0), V(0, 0, 1), 8.7), math.radians(-13.290305), math.radians(0)), False)
sketch6.addGeometry(Part.ArcOfCircle(Part.Circle(V(0, 0, 0), V(0, 0, 1), 8.7), math.radians(0), math.radians(13.290305)), False)
sketch6.addGeometry(Part.ArcOfCircle(Part.Circle(V(0, 0, 0), V(0, 0, 1), 8.7), math.radians(13.290305), math.radians(41.705324)), False)
sketch6.addGeometry(Part.LineSegment(V(6.495214, 5.788108, 0), V(4.368525, 3.661419, 0)), False)
sketch6.addGeometry(Part.ArcOfCircle(Part.Circle(V(0, 0, 0), V(0, 0, 1), 5.7), math.radians(0), math.radians(39.967586)), False)
sketch6.addGeometry(Part.ArcOfCircle(Part.Circle(V(0, 0, 0), V(0, 0, 1), 5.7), math.radians(-129.967586), math.radians(0)), False)
sketch6.addConstraint(Sketcher.Constraint("Tangent", 0, 1, 1, 2))
sketch6.addConstraint(Sketcher.Constraint("Coincident", 1, 1, 2, 1))
sketch6.addConstraint(Sketcher.Constraint("Coincident", 2, 2, 3, 1))
sketch6.addConstraint(Sketcher.Constraint("Tangent", 3, 2, 4, 1))
sketch6.addConstraint(Sketcher.Constraint("Tangent", 4, 2, 5, 1))
sketch6.addConstraint(Sketcher.Constraint("Tangent", 5, 2, 6, 1))
sketch6.addConstraint(Sketcher.Constraint("Tangent", 6, 2, 7, 1))
sketch6.addConstraint(Sketcher.Constraint("Tangent", 7, 2, 8, 1))
sketch6.addConstraint(Sketcher.Constraint("Tangent", 8, 2, 9, 1))
sketch6.addConstraint(Sketcher.Constraint("Tangent", 9, 2, 10, 1))
sketch6.addConstraint(Sketcher.Constraint("Tangent", 10, 2, 11, 1))
sketch6.addConstraint(Sketcher.Constraint("Tangent", 11, 2, 12, 1))
sketch6.addConstraint(Sketcher.Constraint("Coincident", 12, 2, 13, 1))
sketch6.addConstraint(Sketcher.Constraint("Coincident", 13, 2, 14, 2))
sketch6.addConstraint(Sketcher.Constraint("Tangent", 14, 1, 15, 2))
sketch6.addConstraint(Sketcher.Constraint("Tangent", 15, 1, 0, 2))
sketch6.addConstraint(Sketcher.Constraint("Coincident", 0, 3, -1, 1))
sketch6.addConstraint(Sketcher.Constraint("Coincident", 3, 3, -1, 1))
sketch6.addConstraint(Sketcher.Constraint("Coincident", 5, 3, -1, 1))
sketch6.addConstraint(Sketcher.Constraint("Coincident", 7, 3, -1, 1))
sketch6.addConstraint(Sketcher.Constraint("Coincident", 9, 3, -1, 1))
sketch6.addConstraint(Sketcher.Constraint("Coincident", 11, 3, -1, 1))
sketch6.addConstraint(Sketcher.Constraint("Coincident", 14, 3, -1, 1))
sketch6.addConstraint(Sketcher.Constraint("Equal", 0, 1))
sketch6.addConstraint(Sketcher.Constraint("Equal", 11, 12))
sketch6.addConstraint(Sketcher.Constraint("PointOnObject", 10, 2, -1))
sketch6.addConstraint(Sketcher.Constraint("PointOnObject", 14, 1, -1))
sketch6.addConstraint(Sketcher.Constraint("Parallel", 2, 13))
sketch6.addConstraint(Sketcher.Constraint("Horizontal", 3, 2, 4, 2))
sketch6.addConstraint(Sketcher.Constraint("Horizontal", 7, 2, 8, 2))
sketch6.addConstraint(Sketcher.Constraint("Horizontal", 6, 2, 9, 2))
sketch6.addConstraint(Sketcher.Constraint("Horizontal", 5, 2, 11, 2))
sketch6.addConstraint(Sketcher.Constraint("Vertical", 5, 2, 6, 2))
sketch6.addConstraint(Sketcher.Constraint("Vertical", 4, 2, 7, 2))
sketch6.addConstraint(Sketcher.Constraint("Equal", 2, 13))
sketch6.addConstraint(Sketcher.Constraint("Radius", 0, 5.7))
sketch6.addConstraint(Sketcher.Constraint("Radius", 3, 8.7))
sketch6.addConstraint(Sketcher.Constraint("Angle", 2, Q("45 deg")))
sketch6.addConstraint(Sketcher.Constraint("DistanceX", -1, 1, 3, 2, 2.0))
sketch6.addConstraint(Sketcher.Constraint("DistanceY", -1, 1, 5, 2, 2.0))
sketch6.addConstraint(Sketcher.Constraint("DistanceY", 0, 1, -1, 1, 3.661419))
sketch6.addConstraint(Sketcher.Constraint("DistanceX", -1, 1, 1, 1, 3.661419))
sketch6.addConstraint(Sketcher.Constraint("DistanceX", 15, 1, -1, 1, 3.661419))
sketch6.setExpression("Constraints[35]", "Params.sketch6_radius")
sketch6.setExpression("Constraints[36]", "Params.sketch6_radius2")
pad5 = body5.newObject("PartDesign::Pad", "Pad004")
pad5.Profile = sketch6
pad5.setExpression("Length", "Params.pad5_length")
doc.recompute()

fillet5 = body5.newObject("PartDesign::Fillet", "Fillet004")
fillet5.Base = (pad5, edges_at(pad5, [
    (5.788, 6.495, 3),
    (6.495, 5.788, 3),
    (-6.152, -6.152, 0),
    (-6.152, -6.152, 6),
]))
fillet5.setExpression("Radius", "Params.fillet5_radius")

sketch7 = body5.newObject("Sketcher::SketchObject", "Sketch006")
sketch7.AttachmentSupport = (doc.getObject("XY_Plane004"), [""])
sketch7.MapMode = "FlatFace"
sketch7.addGeometry(Part.ArcOfCircle(Part.Circle(V(0, 0, 0), V(0, 0, 1), 5.7), math.radians(50.032414), math.radians(219.967586)), False)
sketch7.addGeometry(Part.LineSegment(V(-4.368525, -3.661419, 0), V(3.661419, 4.368525, 0)), False)
sketch7.addGeometry(Part.ArcOfCircle(Part.Circle(V(0, 0, 0), V(0, 0, 1), 5.7), math.radians(-129.967586), math.radians(0)), False)
sketch7.addGeometry(Part.ArcOfCircle(Part.Circle(V(0, 0, 0), V(0, 0, 1), 5.7), math.radians(0), math.radians(39.967586)), False)
sketch7.addGeometry(Part.LineSegment(V(4.368525, 3.661419, 0), V(-3.661419, -4.368525, 0)), False)
sketch7.addConstraint(Sketcher.Constraint("Coincident", 0, 1, 1, 2))
sketch7.addConstraint(Sketcher.Constraint("Coincident", 1, 1, 0, 2))
sketch7.addConstraint(Sketcher.Constraint("Tangent", 2, 2, 3, 1))
sketch7.addConstraint(Sketcher.Constraint("Coincident", 3, 2, 4, 1))
sketch7.addConstraint(Sketcher.Constraint("Coincident", 4, 2, 2, 1))
sketch7.addConstraint(Sketcher.Constraint("Coincident", 0, 3, -1, 1))
sketch7.addConstraint(Sketcher.Constraint("Coincident", 2, 3, -1, 1))
sketch7.addConstraint(Sketcher.Constraint("Equal", 0, 2))
sketch7.addConstraint(Sketcher.Constraint("Equal", 2, 3))
sketch7.addConstraint(Sketcher.Constraint("PointOnObject", 2, 2, -1))
sketch7.addConstraint(Sketcher.Constraint("Parallel", 1, 4))
sketch7.addConstraint(Sketcher.Constraint("Equal", 1, 4))
sketch7.addConstraint(Sketcher.Constraint("Radius", 0, 5.7))
sketch7.addConstraint(Sketcher.Constraint("Angle", 1, Q("45 deg")))
sketch7.addConstraint(Sketcher.Constraint("DistanceX", -1, 1, 0, 1, 3.661419))
sketch7.setExpression("Constraints[12]", "Params.sketch7_radius")
pad6 = body5.newObject("PartDesign::Pad", "Pad005")
pad6.Profile = sketch7
pad6.setExpression("Length", "Params.pad6_length")

doc.recompute()
